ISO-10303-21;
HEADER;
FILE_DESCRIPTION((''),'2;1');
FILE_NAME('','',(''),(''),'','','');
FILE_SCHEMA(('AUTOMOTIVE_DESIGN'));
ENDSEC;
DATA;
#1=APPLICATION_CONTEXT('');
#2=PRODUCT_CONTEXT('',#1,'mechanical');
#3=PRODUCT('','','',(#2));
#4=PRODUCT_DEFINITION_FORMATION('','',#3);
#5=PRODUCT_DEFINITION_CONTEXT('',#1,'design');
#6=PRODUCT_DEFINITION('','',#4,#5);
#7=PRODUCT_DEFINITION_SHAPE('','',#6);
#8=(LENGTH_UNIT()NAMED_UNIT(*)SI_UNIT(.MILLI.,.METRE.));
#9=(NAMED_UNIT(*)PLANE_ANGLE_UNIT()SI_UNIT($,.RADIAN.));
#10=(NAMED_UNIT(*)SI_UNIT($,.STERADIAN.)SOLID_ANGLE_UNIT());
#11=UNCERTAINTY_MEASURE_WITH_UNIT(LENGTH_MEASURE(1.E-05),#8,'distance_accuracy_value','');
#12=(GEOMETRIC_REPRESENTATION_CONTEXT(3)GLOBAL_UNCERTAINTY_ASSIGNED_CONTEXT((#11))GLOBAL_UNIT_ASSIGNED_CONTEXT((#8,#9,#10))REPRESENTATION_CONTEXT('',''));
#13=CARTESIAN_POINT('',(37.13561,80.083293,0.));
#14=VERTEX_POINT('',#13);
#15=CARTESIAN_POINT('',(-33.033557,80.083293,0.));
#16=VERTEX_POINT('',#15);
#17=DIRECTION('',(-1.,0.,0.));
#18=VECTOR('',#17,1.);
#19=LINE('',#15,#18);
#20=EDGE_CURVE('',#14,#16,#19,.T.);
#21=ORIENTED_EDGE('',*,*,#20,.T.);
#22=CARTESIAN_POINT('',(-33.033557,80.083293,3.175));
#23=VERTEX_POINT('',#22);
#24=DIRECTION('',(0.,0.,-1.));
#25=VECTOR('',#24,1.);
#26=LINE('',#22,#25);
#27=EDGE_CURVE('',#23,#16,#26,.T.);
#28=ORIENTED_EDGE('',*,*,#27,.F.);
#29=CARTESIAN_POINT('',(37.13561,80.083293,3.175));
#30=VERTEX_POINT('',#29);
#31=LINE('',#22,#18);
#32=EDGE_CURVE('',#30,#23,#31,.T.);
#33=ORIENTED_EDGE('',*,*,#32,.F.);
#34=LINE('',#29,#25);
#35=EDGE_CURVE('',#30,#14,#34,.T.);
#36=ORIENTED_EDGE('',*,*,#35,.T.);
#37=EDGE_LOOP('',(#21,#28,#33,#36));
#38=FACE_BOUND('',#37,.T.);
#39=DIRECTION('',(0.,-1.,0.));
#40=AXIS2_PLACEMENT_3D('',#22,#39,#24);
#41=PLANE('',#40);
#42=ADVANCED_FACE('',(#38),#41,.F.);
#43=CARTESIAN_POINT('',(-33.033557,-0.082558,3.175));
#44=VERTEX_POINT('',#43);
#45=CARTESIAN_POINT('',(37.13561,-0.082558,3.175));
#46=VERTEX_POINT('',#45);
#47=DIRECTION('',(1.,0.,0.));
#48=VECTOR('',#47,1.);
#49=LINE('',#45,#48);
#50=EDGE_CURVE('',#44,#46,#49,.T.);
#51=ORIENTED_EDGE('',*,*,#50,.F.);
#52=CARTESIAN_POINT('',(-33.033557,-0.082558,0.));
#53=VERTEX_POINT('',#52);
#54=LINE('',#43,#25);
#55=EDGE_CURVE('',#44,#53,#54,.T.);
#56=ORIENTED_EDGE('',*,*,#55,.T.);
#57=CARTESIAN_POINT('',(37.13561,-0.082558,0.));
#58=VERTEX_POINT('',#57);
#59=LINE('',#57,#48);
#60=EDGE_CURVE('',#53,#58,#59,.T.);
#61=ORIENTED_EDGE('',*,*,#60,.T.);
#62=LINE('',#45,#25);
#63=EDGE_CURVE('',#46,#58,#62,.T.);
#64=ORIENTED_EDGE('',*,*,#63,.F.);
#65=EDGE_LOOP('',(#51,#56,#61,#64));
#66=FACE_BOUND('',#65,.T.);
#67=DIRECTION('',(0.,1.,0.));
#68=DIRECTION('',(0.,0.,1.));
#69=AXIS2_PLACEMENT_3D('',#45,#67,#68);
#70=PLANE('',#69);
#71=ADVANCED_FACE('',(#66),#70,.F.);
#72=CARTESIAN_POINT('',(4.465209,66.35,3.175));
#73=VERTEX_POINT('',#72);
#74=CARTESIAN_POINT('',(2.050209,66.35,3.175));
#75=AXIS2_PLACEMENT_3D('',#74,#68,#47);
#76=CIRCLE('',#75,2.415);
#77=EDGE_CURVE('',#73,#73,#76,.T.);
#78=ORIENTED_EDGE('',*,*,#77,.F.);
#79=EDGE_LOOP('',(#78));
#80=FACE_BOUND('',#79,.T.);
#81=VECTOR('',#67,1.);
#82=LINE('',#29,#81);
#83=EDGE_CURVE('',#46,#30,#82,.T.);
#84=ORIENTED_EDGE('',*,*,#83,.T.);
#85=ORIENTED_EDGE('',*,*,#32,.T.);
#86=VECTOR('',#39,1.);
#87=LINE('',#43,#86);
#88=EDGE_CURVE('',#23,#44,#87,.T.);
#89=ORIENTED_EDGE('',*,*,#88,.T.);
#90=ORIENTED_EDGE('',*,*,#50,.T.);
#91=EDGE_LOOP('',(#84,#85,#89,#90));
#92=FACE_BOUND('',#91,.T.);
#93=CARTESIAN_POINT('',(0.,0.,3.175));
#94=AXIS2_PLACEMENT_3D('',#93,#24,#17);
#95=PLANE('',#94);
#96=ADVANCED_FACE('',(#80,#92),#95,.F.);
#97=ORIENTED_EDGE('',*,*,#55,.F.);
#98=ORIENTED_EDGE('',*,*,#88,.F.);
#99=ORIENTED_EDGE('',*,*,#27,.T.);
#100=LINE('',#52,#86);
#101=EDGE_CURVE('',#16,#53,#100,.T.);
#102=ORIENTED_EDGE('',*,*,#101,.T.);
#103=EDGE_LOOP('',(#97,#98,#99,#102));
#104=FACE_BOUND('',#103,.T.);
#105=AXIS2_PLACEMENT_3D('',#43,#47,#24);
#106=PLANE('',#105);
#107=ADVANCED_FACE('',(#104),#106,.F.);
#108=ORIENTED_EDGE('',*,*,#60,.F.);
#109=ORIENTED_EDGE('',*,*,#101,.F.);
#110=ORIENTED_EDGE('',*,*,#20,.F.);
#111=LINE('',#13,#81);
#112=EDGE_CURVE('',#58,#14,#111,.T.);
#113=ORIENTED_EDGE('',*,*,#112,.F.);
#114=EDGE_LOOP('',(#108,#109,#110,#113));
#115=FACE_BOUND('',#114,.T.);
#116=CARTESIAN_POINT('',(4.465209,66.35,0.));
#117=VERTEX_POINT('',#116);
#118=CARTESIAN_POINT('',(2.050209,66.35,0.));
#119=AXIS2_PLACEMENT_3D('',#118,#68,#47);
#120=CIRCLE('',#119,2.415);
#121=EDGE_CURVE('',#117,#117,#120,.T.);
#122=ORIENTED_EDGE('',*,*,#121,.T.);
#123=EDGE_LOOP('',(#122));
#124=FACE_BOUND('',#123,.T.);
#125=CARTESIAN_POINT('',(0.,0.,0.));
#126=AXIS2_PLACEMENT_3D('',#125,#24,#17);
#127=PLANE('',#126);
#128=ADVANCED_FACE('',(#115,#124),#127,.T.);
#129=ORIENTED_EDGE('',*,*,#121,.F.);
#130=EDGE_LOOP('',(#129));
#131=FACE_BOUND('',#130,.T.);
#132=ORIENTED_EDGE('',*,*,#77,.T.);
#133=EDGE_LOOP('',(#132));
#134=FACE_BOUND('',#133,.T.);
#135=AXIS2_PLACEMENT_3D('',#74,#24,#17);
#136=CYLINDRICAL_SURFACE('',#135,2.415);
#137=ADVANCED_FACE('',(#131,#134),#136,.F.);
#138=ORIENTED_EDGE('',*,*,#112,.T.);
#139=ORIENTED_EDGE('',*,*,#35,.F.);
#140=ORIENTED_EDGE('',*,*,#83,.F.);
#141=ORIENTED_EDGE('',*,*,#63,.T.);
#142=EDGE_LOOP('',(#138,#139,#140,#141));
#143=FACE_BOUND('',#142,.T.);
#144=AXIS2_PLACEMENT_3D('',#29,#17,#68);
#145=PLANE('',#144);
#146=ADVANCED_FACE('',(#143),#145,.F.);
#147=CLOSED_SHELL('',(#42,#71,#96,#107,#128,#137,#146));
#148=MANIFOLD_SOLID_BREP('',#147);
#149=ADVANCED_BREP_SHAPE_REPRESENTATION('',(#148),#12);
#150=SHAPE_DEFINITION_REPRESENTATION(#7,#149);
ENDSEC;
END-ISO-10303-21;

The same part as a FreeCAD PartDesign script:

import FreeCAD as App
import Part
import Sketcher

V = App.Vector
Q = App.Units.Quantity

doc = App.newDocument("Part")
body = doc.addObject("PartDesign::Body", "Body")

# Sketch on XY plane
sketch1 = body.newObject("Sketcher::SketchObject", "Sketch")
sketch1.AttachmentSupport = (doc.getObject("XY_Plane"), [""])
sketch1.MapMode = "FlatFace"
sketch1.addGeometry([
    Part.LineSegment(V(-33, 80.1, 0), V(-33, -0.1, 0)),  # 0
    Part.LineSegment(V(-33, -0.1, 0), V(37.1, -0.1, 0)),  # 1
    Part.LineSegment(V(37.1, -0.1, 0), V(37.1, 80.1, 0)),  # 2
    Part.LineSegment(V(37.1, 80.1, 0), V(-33, 80.1, 0)),  # 3
    Part.Circle(V(2.1, 66.3, 0), V(0, 0, 1), 2.4),  # 4
], False)
sketch1.addConstraint([
    Sketcher.Constraint("Coincident", 0, 2, 1, 1),
    Sketcher.Constraint("Coincident", 1, 2, 2, 1),
    Sketcher.Constraint("Coincident", 2, 2, 3, 1),
    Sketcher.Constraint("Coincident", 3, 2, 0, 1),
    Sketcher.Constraint("Vertical", 0),
    Sketcher.Constraint("Horizontal", 1),
    Sketcher.Constraint("Vertical", 2),
    Sketcher.Constraint("Horizontal", 3),
    Sketcher.Constraint("Diameter", 4, 4.83),
    Sketcher.Constraint("DistanceY", 0, 2, 0, 1, 80.165851),
    Sketcher.Constraint("DistanceY", -1, 1, 4, 3, 66.35),
    Sketcher.Constraint("DistanceX", 4, 3, 1, 2, 35.0854),
    Sketcher.Constraint("DistanceX", 1, 1, 1, 2, 70.169166),
    Sketcher.Constraint("DistanceX", -1, 1, 4, 3, 2.050209),
    Sketcher.Constraint("DistanceY", 0, 2, -1, 1, 0.082558),
])
pad1 = body.newObject("PartDesign::Pad", "Pad")
pad1.Profile = sketch1
pad1.Length = Q("0.125 in")

doc.recompute()
